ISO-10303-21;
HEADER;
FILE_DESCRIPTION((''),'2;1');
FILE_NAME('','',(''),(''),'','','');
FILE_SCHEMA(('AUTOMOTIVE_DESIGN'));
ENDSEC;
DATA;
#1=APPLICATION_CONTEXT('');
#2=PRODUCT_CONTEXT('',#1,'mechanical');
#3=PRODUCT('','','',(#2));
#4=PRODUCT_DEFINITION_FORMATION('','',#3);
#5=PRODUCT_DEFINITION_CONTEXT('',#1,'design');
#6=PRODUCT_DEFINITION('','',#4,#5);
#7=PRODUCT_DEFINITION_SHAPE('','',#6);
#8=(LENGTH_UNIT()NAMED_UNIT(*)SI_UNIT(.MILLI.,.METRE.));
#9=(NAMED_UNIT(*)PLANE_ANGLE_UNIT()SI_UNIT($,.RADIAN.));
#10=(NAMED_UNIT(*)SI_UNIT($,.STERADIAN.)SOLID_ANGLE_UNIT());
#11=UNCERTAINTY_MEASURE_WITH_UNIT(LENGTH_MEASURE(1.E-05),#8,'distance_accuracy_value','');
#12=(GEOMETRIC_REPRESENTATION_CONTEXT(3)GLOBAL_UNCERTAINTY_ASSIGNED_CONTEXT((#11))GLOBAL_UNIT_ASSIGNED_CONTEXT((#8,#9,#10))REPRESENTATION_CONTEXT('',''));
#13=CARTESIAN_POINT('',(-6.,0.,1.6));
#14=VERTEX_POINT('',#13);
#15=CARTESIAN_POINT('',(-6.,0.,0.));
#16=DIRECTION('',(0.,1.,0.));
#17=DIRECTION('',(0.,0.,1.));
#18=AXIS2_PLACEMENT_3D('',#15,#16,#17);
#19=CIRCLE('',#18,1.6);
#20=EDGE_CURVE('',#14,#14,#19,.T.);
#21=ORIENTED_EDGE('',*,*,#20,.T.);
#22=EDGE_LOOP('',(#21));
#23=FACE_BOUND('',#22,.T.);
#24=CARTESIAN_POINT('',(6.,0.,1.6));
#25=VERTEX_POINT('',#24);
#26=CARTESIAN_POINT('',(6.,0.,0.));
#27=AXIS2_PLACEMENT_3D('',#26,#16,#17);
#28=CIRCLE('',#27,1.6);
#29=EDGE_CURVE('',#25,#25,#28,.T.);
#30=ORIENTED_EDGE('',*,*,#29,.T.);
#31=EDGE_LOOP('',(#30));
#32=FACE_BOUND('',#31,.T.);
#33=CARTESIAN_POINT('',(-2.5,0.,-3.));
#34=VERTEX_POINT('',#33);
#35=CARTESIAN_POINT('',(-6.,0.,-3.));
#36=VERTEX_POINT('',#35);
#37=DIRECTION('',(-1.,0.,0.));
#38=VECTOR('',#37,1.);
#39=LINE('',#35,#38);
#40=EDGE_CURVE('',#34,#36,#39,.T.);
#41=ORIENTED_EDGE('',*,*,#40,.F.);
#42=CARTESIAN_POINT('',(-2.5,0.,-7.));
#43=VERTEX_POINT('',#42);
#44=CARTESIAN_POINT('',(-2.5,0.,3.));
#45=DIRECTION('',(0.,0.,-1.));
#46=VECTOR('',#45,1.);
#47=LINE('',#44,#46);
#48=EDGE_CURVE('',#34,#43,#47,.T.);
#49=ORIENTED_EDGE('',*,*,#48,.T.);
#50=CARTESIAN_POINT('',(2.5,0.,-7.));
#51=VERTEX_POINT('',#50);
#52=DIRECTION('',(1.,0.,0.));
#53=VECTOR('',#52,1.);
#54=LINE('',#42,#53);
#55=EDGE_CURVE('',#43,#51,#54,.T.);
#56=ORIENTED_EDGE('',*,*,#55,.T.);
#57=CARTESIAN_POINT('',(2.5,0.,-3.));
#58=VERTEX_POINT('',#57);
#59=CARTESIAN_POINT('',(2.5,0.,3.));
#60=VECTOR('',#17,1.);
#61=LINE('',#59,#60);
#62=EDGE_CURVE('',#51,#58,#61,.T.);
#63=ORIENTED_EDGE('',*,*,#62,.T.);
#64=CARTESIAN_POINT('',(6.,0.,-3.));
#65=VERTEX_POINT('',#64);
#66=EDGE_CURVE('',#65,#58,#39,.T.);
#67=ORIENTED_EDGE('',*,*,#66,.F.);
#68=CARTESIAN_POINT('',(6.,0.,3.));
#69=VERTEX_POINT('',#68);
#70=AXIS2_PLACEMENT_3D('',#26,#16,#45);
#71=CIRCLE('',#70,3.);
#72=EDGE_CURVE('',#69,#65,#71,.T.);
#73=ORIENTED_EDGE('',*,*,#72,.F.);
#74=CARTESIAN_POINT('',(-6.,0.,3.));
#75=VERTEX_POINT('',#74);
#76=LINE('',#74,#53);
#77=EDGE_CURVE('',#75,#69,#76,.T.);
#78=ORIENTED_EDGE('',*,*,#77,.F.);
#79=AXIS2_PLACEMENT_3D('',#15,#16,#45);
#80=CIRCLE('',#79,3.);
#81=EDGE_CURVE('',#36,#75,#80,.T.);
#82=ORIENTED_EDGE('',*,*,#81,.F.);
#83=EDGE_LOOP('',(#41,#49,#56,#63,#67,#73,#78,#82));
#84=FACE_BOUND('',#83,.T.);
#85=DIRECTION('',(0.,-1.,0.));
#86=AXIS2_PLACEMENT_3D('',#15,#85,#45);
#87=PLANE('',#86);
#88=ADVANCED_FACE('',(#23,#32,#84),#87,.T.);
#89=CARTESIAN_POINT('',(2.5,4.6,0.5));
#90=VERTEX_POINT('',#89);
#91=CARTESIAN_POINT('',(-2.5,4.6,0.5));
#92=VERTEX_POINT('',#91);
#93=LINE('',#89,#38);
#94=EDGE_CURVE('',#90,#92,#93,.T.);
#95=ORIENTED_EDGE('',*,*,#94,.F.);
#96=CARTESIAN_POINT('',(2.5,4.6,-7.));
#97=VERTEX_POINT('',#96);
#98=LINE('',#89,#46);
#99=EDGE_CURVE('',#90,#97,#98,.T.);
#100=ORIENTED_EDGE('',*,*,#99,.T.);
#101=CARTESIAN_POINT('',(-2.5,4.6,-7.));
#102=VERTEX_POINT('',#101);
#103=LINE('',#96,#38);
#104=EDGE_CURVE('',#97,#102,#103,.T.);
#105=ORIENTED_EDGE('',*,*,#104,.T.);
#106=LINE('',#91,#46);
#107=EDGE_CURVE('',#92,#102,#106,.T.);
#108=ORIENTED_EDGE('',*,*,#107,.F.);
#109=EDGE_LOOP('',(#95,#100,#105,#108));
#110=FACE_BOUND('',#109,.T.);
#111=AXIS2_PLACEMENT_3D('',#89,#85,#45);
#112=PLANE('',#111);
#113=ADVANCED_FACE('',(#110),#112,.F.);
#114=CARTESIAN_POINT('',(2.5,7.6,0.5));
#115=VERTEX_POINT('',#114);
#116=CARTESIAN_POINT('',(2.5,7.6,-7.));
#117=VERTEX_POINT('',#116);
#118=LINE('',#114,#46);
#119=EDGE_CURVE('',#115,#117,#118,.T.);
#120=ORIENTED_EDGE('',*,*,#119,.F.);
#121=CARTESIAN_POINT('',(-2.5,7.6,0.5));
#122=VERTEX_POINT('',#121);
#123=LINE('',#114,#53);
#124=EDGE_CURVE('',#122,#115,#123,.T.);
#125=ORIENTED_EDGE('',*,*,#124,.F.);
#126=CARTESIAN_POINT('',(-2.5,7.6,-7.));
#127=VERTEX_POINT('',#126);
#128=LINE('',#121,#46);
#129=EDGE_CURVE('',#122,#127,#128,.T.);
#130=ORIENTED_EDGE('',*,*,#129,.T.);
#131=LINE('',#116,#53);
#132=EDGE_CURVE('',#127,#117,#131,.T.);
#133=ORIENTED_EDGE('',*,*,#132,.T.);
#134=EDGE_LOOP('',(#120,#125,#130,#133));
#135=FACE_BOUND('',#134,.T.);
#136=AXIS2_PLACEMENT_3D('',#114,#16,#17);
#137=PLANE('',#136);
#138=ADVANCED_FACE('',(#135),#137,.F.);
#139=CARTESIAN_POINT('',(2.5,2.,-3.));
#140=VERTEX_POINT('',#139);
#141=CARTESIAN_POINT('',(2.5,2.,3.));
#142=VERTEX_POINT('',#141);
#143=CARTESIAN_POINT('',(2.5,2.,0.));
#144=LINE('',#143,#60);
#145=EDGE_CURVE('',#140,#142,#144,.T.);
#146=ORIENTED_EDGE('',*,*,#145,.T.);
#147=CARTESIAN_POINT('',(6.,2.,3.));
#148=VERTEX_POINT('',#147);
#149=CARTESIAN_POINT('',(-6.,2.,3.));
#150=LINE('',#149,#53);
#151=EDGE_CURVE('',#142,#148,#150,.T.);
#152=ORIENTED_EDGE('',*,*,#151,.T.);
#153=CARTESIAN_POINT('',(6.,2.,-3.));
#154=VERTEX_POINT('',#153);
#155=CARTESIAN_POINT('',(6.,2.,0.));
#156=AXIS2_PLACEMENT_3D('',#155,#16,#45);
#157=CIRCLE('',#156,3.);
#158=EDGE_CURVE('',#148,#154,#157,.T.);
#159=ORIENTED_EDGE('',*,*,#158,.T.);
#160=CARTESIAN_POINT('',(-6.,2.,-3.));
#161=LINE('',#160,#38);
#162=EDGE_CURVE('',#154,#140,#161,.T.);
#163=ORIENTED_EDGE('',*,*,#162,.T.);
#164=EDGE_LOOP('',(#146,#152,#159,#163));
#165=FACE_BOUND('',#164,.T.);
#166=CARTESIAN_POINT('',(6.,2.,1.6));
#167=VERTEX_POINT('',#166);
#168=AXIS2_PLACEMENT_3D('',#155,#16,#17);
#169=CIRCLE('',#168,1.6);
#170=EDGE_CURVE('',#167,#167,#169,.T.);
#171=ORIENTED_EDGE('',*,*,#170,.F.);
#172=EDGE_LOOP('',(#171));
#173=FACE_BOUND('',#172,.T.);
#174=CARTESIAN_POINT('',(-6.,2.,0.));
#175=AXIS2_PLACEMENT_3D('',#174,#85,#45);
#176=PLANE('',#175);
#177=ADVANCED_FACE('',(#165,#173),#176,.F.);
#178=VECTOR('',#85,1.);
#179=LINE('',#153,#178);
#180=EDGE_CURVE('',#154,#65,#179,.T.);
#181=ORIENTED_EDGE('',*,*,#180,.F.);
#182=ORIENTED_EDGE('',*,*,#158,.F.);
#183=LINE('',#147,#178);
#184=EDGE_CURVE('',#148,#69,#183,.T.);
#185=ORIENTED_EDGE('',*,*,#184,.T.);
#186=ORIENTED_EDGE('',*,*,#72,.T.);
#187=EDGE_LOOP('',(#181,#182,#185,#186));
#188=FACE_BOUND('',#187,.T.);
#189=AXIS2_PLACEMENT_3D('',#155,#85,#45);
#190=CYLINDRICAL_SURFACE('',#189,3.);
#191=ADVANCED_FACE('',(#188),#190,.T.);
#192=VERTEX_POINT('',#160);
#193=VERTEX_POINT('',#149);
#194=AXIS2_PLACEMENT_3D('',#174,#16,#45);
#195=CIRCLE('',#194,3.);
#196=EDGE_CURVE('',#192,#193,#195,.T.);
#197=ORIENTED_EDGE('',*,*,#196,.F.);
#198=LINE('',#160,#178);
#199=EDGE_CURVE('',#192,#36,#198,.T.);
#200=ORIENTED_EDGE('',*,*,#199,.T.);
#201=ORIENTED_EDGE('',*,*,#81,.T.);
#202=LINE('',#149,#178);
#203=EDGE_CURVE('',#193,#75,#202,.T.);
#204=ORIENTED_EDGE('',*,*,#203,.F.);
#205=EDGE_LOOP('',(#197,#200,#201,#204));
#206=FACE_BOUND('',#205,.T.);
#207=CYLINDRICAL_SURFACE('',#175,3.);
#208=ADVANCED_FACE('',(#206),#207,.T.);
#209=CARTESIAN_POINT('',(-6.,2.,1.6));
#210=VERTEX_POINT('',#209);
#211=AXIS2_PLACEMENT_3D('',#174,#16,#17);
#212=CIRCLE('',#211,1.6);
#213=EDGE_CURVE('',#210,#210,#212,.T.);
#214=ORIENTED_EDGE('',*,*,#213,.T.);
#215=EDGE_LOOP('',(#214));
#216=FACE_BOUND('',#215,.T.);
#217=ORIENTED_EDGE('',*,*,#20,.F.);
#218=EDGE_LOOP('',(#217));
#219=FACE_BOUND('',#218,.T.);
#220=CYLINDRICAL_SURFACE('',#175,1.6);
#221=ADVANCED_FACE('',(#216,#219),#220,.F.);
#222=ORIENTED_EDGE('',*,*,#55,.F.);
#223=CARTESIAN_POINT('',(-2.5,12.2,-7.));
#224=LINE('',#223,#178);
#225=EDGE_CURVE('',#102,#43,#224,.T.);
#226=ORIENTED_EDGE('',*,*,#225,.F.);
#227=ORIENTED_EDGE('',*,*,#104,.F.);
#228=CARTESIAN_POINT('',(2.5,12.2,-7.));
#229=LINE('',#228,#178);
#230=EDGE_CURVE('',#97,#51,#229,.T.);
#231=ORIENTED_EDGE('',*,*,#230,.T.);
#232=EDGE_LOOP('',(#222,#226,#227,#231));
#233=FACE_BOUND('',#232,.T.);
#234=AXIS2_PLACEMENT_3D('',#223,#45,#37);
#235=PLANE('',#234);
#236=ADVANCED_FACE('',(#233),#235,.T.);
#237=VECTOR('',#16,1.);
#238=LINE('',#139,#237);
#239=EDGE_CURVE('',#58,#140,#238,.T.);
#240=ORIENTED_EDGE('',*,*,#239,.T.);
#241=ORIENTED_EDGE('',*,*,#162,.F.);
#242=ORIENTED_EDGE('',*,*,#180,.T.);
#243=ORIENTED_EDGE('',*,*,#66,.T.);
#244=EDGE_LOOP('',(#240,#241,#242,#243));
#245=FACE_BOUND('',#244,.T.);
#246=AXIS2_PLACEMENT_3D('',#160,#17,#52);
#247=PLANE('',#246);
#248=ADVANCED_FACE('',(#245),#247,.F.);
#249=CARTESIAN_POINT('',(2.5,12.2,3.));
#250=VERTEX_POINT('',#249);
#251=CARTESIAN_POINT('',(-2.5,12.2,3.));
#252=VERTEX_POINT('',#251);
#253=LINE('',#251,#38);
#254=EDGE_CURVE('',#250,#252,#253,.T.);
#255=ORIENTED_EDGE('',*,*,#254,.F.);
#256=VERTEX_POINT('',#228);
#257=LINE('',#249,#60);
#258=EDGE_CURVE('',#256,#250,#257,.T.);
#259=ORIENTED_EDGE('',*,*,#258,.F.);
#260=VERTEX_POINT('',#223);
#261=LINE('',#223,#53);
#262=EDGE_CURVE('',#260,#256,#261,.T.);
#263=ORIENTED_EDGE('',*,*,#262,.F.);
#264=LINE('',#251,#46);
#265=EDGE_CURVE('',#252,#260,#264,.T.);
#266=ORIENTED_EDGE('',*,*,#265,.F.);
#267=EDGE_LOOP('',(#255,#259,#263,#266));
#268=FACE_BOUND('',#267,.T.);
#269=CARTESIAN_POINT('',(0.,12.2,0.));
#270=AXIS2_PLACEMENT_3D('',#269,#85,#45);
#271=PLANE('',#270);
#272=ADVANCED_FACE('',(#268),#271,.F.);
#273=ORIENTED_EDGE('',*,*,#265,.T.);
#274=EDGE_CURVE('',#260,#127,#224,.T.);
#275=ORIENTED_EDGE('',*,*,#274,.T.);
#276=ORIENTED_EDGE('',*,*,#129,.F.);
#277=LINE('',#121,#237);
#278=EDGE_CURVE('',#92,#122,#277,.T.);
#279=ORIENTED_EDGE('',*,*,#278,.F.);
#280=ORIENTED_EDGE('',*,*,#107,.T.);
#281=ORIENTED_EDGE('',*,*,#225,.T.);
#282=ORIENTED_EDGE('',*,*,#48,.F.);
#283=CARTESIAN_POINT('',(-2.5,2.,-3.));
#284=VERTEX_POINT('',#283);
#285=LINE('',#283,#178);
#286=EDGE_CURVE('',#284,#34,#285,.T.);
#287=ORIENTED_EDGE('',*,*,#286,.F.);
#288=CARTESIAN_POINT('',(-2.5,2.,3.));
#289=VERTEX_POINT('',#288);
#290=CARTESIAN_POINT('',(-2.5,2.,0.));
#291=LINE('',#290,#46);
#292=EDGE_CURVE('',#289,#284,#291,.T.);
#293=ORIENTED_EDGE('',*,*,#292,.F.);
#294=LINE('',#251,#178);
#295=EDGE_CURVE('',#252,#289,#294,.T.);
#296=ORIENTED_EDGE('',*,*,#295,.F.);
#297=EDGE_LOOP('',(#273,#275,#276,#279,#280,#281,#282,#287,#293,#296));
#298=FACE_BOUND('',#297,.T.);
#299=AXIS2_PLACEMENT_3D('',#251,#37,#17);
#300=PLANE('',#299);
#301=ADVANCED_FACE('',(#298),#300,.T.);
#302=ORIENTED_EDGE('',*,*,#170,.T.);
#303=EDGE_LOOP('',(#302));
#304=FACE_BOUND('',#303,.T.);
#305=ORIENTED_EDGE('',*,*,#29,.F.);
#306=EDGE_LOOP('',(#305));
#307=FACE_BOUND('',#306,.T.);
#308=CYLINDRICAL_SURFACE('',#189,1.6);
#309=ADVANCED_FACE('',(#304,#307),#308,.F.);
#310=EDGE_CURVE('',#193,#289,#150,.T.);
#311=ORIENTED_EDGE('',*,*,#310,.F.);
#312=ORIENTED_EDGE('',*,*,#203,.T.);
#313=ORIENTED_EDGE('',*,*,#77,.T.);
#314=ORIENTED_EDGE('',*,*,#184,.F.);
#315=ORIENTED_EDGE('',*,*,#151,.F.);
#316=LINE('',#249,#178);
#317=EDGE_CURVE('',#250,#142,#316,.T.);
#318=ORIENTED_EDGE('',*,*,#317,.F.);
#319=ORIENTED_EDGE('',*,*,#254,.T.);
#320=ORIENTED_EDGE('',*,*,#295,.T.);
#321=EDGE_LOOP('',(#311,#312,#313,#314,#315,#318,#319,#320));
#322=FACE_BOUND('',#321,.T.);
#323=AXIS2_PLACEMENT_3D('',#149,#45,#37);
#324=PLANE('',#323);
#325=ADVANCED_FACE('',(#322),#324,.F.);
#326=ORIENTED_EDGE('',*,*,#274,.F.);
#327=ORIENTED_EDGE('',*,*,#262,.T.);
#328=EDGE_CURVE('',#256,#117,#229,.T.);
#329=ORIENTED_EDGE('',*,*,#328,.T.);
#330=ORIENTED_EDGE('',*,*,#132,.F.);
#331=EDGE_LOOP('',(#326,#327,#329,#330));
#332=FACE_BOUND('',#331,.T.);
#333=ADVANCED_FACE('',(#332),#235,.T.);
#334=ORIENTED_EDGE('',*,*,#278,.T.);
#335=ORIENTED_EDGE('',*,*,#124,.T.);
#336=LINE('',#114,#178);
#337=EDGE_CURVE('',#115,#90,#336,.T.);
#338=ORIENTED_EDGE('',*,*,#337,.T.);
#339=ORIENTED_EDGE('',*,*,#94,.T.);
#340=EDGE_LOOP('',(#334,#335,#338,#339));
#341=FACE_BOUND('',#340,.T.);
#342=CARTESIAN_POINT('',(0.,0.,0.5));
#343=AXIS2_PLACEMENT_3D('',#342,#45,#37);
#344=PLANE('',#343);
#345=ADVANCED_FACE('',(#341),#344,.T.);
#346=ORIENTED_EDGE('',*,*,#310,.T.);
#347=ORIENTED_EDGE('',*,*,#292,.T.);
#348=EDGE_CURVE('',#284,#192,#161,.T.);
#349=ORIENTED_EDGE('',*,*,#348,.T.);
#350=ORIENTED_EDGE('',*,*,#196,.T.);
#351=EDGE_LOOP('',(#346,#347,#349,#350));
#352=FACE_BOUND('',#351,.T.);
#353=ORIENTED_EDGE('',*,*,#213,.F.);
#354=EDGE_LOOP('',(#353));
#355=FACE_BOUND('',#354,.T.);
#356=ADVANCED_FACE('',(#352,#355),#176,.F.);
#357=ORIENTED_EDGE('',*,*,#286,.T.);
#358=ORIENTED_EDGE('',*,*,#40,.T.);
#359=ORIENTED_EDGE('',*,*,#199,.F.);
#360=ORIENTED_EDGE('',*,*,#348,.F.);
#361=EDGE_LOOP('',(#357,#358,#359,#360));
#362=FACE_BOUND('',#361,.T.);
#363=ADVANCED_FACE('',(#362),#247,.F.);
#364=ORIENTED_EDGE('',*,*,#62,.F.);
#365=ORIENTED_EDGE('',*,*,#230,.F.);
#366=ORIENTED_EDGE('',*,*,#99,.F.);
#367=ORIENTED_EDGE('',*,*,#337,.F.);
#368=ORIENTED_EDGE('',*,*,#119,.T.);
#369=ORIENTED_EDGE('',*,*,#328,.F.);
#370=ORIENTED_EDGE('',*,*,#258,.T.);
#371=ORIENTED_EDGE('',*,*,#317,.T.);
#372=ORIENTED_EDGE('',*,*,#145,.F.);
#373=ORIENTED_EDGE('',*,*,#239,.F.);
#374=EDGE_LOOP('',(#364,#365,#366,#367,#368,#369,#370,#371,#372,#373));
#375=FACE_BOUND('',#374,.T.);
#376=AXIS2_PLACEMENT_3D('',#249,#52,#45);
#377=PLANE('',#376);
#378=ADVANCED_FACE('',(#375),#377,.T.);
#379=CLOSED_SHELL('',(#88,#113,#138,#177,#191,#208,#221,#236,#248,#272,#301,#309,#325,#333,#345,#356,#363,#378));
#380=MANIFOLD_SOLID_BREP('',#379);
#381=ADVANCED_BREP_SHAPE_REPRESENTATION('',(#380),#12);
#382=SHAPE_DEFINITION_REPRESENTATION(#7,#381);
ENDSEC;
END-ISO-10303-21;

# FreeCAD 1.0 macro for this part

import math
import FreeCAD as App
import Part
import Sketcher
from FreeCAD import Vector
Q = App.Units.Quantity

doc = App.newDocument("Part")
body = doc.addObject("PartDesign::Body", "Body")

# Sketch on XZ plane
sketch1 = body.newObject("Sketcher::SketchObject", "Sketch")
sketch1.AttachmentSupport = (doc.getObject("XZ_Plane"), [""])
sketch1.MapMode = "FlatFace"
sketch1.addGeometry(Part.LineSegment(Vector(6, -3, 0), Vector(-6, -3, 0)), False)
sketch1.addGeometry(Part.ArcOfCircle(Part.Circle(Vector(-6, 0, 0), Vector(0, 0, 1), 3), math.radians(90), math.radians(270)), False)
sketch1.addGeometry(Part.LineSegment(Vector(-6, 3, 0), Vector(6, 3, 0)), False)
sketch1.addGeometry(Part.ArcOfCircle(Part.Circle(Vector(6, 0, 0), Vector(0, 0, 1), 3), math.radians(-90), math.radians(90)), False)
sketch1.addGeometry(Part.Circle(Vector(6, 0, 0), Vector(0, 0, 1), 1.6), False)
sketch1.addGeometry(Part.Circle(Vector(-6, 0, 0), Vector(0, 0, 1), 1.6), False)
sketch1.addConstraint(Sketcher.Constraint("Tangent", 0, 2, 1, 2))
sketch1.addConstraint(Sketcher.Constraint("Tangent", 1, 1, 2, 1))
sketch1.addConstraint(Sketcher.Constraint("Tangent", 2, 2, 3, 2))
sketch1.addConstraint(Sketcher.Constraint("Tangent", 3, 1, 0, 1))
sketch1.addConstraint(Sketcher.Constraint("Horizontal", 0))
sketch1.addConstraint(Sketcher.Constraint("Horizontal", 2))
sketch1.addConstraint(Sketcher.Constraint("Coincident", 4, 3, 3, 3))
sketch1.addConstraint(Sketcher.Constraint("Coincident", 5, 3, 1, 3))
sketch1.addConstraint(Sketcher.Constraint("Equal", 4, 5))
sketch1.addConstraint(Sketcher.Constraint("Symmetric", 1, 3, 3, 3, -1, 1))
sketch1.addConstraint(Sketcher.Constraint("Radius", 1, Q("3 mm")))
sketch1.addConstraint(Sketcher.Constraint("Diameter", 4, Q("3.2 mm")))
sketch1.addConstraint(Sketcher.Constraint("DistanceX", 0, 2, 0, 1, Q("12 mm")))
pad1 = body.newObject("PartDesign::Pad", "Pad")
pad1.Profile = sketch1
pad1.Length = 2
pad1.Reversed = True

# Sketch on XZ plane
sketch2 = body.newObject("Sketcher::SketchObject", "Sketch001")
sketch2.AttachmentSupport = (doc.getObject("XZ_Plane"), [""])
sketch2.MapMode = "FlatFace"
sketch2.addGeometry(Part.LineSegment(Vector(-2.5, 3, 0), Vector(-2.5, -7, 0)), False)
sketch2.addGeometry(Part.LineSegment(Vector(-2.5, -7, 0), Vector(2.5, -7, 0)), False)
sketch2.addGeometry(Part.LineSegment(Vector(2.5, -7, 0), Vector(2.5, 3, 0)), False)
sketch2.addGeometry(Part.LineSegment(Vector(2.5, 3, 0), Vector(-2.5, 3, 0)), False)
sketch2.addConstraint(Sketcher.Constraint("Coincident", 0, 2, 1, 1))
sketch2.addConstraint(Sketcher.Constraint("Coincident", 1, 2, 2, 1))
sketch2.addConstraint(Sketcher.Constraint("Coincident", 2, 2, 3, 1))
sketch2.addConstraint(Sketcher.Constraint("Coincident", 3, 2, 0, 1))
sketch2.addConstraint(Sketcher.Constraint("Vertical", 0))
sketch2.addConstraint(Sketcher.Constraint("Horizontal", 1))
sketch2.addConstraint(Sketcher.Constraint("Vertical", 2))
sketch2.addConstraint(Sketcher.Constraint("Horizontal", 3))
sketch2.addConstraint(Sketcher.Constraint("DistanceX", 1, 1, 1, 2, Q("5 mm")))
sketch2.addConstraint(Sketcher.Constraint("DistanceY", 0, 2, 0, 1, Q("10 mm")))
sketch2.addConstraint(Sketcher.Constraint("DistanceY", 0, 2, -1, 1, Q("7 mm")))
sketch2.addConstraint(Sketcher.Constraint("DistanceX", 0, 2, -1, 1, Q("2.5 mm")))
pad2 = body.newObject("PartDesign::Pad", "Pad001")
pad2.Profile = sketch2
pad2.Length = 12.2
pad2.Reversed = True

# Sketch on XY plane
sketch3 = body.newObject("Sketcher::SketchObject", "Sketch002")
sketch3.AttachmentSupport = (doc.getObject("XY_Plane"), [""])
sketch3.MapMode = "FlatFace"
sketch3.AttachmentOffset = App.Placement(Vector(0, 0, -7), App.Rotation())
sketch3.addGeometry(Part.LineSegment(Vector(2.5, 7.6, 0), Vector(2.5, 4.6, 0)), False)
sketch3.addGeometry(Part.LineSegment(Vector(2.5, 4.6, 0), Vector(-2.5, 4.6, 0)), False)
sketch3.addGeometry(Part.LineSegment(Vector(-2.5, 4.6, 0), Vector(-2.5, 7.6, 0)), False)
sketch3.addGeometry(Part.LineSegment(Vector(-2.5, 7.6, 0), Vector(2.5, 7.6, 0)), False)
sketch3.addConstraint(Sketcher.Constraint("Coincident", 0, 2, 1, 1))
sketch3.addConstraint(Sketcher.Constraint("Coincident", 1, 2, 2, 1))
sketch3.addConstraint(Sketcher.Constraint("Coincident", 2, 2, 3, 1))
sketch3.addConstraint(Sketcher.Constraint("Coincident", 3, 2, 0, 1))
sketch3.addConstraint(Sketcher.Constraint("Vertical", 0))
sketch3.addConstraint(Sketcher.Constraint("Horizontal", 1))
sketch3.addConstraint(Sketcher.Constraint("Vertical", 2))
sketch3.addConstraint(Sketcher.Constraint("Horizontal", 3))
sketch3.addConstraint(Sketcher.Constraint("DistanceX", 1, 2, 1, 1, Q("5 mm")))
sketch3.addConstraint(Sketcher.Constraint("DistanceY", 0, 2, 0, 1, Q("3 mm")))
sketch3.addConstraint(Sketcher.Constraint("DistanceX", -1, 1, 0, 2, Q("2.5 mm")))
sketch3.addConstraint(Sketcher.Constraint("DistanceY", -1, 1, 0, 2, Q("4.6 mm")))
pocket1 = body.newObject("PartDesign::Pocket", "Pocket")
pocket1.Profile = sketch3
pocket1.Length = 7.5
pocket1.Reversed = True

doc.recompute()
